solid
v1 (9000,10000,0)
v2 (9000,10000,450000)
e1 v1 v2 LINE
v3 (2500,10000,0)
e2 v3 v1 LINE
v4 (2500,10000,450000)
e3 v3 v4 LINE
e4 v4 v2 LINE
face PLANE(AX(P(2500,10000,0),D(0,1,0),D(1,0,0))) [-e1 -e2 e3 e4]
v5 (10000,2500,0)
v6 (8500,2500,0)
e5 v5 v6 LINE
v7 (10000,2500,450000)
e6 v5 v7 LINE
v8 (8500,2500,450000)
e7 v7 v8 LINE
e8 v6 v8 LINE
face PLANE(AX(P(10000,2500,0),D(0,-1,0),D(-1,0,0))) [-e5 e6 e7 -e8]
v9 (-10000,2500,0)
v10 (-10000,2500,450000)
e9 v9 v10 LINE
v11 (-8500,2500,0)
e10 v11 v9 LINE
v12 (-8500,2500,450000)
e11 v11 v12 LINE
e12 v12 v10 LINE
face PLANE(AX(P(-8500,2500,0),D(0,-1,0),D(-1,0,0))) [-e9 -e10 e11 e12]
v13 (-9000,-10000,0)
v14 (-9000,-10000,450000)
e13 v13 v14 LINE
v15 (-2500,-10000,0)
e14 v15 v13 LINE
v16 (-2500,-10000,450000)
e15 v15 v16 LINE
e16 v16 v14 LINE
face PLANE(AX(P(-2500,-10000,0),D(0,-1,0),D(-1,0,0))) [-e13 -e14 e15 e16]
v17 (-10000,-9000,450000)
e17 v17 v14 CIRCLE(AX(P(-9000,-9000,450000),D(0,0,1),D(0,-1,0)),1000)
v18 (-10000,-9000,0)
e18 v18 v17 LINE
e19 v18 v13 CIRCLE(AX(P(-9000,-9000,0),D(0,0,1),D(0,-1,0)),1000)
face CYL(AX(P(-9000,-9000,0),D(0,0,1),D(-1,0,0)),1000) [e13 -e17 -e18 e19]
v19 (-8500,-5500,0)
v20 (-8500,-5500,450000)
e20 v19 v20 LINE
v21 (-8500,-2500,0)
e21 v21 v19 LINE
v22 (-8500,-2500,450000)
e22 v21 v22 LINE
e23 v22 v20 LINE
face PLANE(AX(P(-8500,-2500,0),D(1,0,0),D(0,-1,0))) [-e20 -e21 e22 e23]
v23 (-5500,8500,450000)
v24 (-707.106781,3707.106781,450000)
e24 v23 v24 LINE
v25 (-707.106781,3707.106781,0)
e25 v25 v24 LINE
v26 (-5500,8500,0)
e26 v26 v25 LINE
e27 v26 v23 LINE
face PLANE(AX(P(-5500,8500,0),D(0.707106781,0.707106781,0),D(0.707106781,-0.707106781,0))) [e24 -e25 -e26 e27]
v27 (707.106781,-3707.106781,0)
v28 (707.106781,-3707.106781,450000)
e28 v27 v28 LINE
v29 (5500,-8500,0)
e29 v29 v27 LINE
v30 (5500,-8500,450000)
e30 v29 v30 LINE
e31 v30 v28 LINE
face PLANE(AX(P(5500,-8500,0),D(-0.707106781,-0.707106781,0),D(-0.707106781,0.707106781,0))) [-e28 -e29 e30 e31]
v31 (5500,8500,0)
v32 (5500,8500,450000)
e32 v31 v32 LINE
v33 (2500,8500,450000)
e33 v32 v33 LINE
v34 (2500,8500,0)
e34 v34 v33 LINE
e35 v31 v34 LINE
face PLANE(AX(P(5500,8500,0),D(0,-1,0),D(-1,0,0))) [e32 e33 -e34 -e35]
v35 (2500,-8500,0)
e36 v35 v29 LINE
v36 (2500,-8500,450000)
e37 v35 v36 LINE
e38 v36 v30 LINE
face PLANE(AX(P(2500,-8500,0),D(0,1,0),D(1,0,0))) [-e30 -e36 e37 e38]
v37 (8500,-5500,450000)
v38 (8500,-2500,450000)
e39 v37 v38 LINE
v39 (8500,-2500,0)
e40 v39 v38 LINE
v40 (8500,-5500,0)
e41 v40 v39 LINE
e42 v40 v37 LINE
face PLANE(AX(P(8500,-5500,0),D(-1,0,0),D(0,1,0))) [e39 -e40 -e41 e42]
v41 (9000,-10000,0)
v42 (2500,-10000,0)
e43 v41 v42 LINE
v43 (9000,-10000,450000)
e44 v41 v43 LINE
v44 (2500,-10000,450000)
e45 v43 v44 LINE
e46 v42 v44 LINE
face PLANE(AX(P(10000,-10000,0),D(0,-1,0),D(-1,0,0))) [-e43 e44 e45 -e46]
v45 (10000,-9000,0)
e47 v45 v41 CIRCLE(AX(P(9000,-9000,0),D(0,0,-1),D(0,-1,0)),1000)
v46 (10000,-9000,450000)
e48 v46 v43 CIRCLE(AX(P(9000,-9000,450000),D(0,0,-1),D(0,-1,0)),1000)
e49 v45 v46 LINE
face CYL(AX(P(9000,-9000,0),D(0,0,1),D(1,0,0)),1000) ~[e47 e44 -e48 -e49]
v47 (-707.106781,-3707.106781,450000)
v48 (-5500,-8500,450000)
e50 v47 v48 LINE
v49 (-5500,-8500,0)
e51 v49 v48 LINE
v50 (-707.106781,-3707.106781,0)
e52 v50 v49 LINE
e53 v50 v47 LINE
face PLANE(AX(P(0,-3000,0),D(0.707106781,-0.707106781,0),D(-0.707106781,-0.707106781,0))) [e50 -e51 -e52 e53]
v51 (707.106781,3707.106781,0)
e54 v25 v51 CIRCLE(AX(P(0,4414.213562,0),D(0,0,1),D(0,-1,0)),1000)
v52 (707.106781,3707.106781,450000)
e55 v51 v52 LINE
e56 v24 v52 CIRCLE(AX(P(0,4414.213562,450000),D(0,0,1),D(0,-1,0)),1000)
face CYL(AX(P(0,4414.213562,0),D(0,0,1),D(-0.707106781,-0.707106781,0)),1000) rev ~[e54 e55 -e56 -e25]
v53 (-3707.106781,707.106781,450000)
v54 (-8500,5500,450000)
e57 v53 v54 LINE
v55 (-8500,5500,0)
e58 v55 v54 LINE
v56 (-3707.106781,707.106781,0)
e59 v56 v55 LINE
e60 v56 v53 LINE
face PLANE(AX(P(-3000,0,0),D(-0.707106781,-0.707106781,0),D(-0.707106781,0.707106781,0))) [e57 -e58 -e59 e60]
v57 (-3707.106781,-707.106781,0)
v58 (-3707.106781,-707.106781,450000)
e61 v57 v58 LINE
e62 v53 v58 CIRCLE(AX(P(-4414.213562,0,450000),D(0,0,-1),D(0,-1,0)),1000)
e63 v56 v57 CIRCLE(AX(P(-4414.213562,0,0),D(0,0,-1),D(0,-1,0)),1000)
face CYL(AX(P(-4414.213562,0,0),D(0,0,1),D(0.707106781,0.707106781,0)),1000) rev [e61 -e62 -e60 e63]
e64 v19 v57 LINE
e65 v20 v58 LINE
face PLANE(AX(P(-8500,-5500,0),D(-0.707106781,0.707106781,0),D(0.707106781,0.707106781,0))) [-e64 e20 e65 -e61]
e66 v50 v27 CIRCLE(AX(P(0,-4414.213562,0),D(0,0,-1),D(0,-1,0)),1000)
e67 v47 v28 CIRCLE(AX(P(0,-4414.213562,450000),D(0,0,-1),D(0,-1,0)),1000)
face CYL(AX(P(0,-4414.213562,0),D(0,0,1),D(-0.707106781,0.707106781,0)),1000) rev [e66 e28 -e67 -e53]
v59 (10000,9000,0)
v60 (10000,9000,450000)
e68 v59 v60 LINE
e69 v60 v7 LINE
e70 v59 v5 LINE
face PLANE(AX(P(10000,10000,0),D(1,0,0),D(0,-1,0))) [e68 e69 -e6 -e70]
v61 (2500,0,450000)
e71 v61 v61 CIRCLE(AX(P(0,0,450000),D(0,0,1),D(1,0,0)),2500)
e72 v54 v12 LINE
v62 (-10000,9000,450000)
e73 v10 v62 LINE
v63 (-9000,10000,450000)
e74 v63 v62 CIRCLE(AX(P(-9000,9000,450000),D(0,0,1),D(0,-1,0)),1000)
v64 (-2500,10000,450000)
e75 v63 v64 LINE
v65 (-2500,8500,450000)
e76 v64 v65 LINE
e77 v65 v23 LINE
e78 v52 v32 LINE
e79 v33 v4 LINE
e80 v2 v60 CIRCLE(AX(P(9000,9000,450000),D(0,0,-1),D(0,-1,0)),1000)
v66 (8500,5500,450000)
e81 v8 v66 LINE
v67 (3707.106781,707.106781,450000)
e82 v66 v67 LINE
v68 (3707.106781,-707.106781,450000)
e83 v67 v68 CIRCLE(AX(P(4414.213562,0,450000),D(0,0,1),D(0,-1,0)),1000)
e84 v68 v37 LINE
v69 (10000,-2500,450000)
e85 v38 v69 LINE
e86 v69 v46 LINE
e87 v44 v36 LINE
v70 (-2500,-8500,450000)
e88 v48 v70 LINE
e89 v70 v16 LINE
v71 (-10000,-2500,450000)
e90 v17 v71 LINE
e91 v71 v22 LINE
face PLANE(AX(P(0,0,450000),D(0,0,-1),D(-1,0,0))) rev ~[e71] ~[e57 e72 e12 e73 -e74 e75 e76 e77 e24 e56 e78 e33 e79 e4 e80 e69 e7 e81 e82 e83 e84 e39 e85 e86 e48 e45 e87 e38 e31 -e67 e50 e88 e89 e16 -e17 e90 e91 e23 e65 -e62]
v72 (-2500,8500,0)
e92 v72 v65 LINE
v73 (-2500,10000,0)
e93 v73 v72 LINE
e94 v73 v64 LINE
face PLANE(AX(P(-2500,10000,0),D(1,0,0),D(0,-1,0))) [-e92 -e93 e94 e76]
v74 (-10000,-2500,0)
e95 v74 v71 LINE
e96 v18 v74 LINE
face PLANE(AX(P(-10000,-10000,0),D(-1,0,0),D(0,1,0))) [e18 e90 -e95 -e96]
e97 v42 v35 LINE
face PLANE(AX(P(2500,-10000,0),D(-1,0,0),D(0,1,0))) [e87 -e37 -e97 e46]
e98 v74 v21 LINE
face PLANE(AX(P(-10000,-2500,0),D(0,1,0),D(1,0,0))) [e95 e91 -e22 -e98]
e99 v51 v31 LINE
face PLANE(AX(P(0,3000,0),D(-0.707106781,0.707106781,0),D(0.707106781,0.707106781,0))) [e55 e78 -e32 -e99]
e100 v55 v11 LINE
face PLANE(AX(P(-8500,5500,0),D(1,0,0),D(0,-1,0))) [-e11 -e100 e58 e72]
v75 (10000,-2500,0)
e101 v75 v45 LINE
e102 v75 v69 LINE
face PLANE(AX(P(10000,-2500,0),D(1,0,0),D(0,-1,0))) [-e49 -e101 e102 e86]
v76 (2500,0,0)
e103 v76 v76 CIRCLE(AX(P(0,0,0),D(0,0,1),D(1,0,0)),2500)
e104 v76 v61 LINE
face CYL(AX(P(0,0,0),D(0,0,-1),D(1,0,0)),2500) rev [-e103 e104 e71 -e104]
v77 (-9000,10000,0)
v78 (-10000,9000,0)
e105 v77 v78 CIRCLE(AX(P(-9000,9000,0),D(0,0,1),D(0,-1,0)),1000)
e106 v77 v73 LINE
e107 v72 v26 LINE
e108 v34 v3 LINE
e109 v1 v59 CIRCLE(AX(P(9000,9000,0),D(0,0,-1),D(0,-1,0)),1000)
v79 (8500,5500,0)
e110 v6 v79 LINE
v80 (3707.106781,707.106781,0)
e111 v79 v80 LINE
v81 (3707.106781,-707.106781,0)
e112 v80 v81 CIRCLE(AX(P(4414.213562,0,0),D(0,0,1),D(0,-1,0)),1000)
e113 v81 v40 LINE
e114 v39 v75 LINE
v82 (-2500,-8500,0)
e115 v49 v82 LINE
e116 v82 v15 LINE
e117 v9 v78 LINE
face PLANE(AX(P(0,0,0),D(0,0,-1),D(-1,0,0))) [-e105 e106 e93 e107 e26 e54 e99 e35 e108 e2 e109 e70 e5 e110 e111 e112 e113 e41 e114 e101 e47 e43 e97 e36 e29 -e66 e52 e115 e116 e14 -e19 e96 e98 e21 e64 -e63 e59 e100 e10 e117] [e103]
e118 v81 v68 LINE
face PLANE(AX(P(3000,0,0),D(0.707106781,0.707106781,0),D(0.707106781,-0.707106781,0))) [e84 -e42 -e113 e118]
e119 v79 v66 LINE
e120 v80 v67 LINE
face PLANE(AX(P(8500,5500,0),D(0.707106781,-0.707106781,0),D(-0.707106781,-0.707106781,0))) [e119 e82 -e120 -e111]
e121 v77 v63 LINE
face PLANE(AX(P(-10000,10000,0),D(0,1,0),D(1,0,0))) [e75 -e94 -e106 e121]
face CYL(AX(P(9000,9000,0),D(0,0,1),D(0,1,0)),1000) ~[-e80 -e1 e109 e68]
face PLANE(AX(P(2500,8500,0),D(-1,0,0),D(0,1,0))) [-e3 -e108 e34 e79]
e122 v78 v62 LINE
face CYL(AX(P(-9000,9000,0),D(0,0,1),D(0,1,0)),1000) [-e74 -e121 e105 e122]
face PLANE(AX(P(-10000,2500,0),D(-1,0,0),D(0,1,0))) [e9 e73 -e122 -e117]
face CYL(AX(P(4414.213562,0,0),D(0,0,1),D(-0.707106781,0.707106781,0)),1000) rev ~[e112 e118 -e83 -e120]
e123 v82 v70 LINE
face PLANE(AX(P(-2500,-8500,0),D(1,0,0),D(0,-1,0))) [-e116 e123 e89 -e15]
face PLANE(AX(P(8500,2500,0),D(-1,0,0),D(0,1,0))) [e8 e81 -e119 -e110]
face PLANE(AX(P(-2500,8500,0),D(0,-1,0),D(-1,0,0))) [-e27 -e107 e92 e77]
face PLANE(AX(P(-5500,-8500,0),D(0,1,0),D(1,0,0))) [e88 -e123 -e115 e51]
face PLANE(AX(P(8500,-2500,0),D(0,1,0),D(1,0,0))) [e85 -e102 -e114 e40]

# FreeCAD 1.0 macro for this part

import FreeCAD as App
import Part
import Sketcher
from FreeCAD import Vector
Q = App.Units.Quantity


def edges_at(feature, points):
    """Names of the edges that pass closest to the given points."""
    edges = feature.Shape.Edges
    near = lambda p: min(range(len(edges)), key=lambda i: edges[i].distToShape(Part.Vertex(*p))[0])
    return sorted({f"Edge{near(p) + 1}" for p in points})

doc = App.newDocument("Part")
body = doc.addObject("PartDesign::Body", "Body")

# Sketch on XY plane
sketch1 = body.newObject("Sketcher::SketchObject", "Sketch")
sketch1.AttachmentSupport = (doc.getObject("XY_Plane"), [""])
sketch1.MapMode = "FlatFace"
sketch1.addGeometry([
    Part.LineSegment(Vector(-2500, 8500, 0), Vector(-2500, 10000, 0)),  # 0
    Part.LineSegment(Vector(-2500, 10000, 0), Vector(-10000, 10000, 0)),  # 1
    Part.LineSegment(Vector(-10000, 10000, 0), Vector(-10000, 2500, 0)),  # 2
    Part.LineSegment(Vector(-10000, 2500, 0), Vector(-8500, 2500, 0)),  # 3
    Part.LineSegment(Vector(-8500, 2500, 0), Vector(-8500, 5500, 0)),  # 4
    Part.LineSegment(Vector(-8500, 5500, 0), Vector(-3000, 0, 0)),  # 5
    Part.LineSegment(Vector(-3000, 0, 0), Vector(-8500, -5500, 0)),  # 6
    Part.LineSegment(Vector(-8500, -5500, 0), Vector(-8500, -2500, 0)),  # 7
    Part.LineSegment(Vector(-8500, -2500, 0), Vector(-10000, -2500, 0)),  # 8
    Part.LineSegment(Vector(-10000, -2500, 0), Vector(-10000, -10000, 0)),  # 9
    Part.LineSegment(Vector(-10000, -10000, 0), Vector(-2500, -10000, 0)),  # 10
    Part.LineSegment(Vector(-2500, -10000, 0), Vector(-2500, -8500, 0)),  # 11
    Part.LineSegment(Vector(-2500, -8500, 0), Vector(-5500, -8500, 0)),  # 12
    Part.LineSegment(Vector(-5500, -8500, 0), Vector(0, -3000, 0)),  # 13
    Part.LineSegment(Vector(0, -3000, 0), Vector(5500, -8500, 0)),  # 14
    Part.LineSegment(Vector(5500, -8500, 0), Vector(2500, -8500, 0)),  # 15
    Part.LineSegment(Vector(2500, -8500, 0), Vector(2500, -10000, 0)),  # 16
    Part.LineSegment(Vector(2500, -10000, 0), Vector(10000, -10000, 0)),  # 17
    Part.LineSegment(Vector(10000, -10000, 0), Vector(10000, -2500, 0)),  # 18
    Part.LineSegment(Vector(10000, -2500, 0), Vector(8500, -2500, 0)),  # 19
    Part.LineSegment(Vector(8500, -2500, 0), Vector(8500, -5500, 0)),  # 20
    Part.LineSegment(Vector(8500, -5500, 0), Vector(3000, 0, 0)),  # 21
    Part.LineSegment(Vector(3000, 0, 0), Vector(8500, 5500, 0)),  # 22
    Part.LineSegment(Vector(8500, 5500, 0), Vector(8500, 2500, 0)),  # 23
    Part.LineSegment(Vector(8500, 2500, 0), Vector(10000, 2500, 0)),  # 24
    Part.LineSegment(Vector(10000, 2500, 0), Vector(10000, 10000, 0)),  # 25
    Part.LineSegment(Vector(10000, 10000, 0), Vector(2500, 10000, 0)),  # 26
    Part.LineSegment(Vector(2500, 10000, 0), Vector(2500, 8500, 0)),  # 27
    Part.LineSegment(Vector(2500, 8500, 0), Vector(5500, 8500, 0)),  # 28
    Part.LineSegment(Vector(5500, 8500, 0), Vector(0, 3000, 0)),  # 29
    Part.LineSegment(Vector(0, 3000, 0), Vector(-5500, 8500, 0)),  # 30
    Part.LineSegment(Vector(-5500, 8500, 0), Vector(-2500, 8500, 0)),  # 31
    Part.Circle(Vector(0, 0, 0), Vector(0, 0, 1), 2500),  # 32
], False)
sketch1.addConstraint([
    Sketcher.Constraint("Coincident", 0, 2, 1, 1),
    Sketcher.Constraint("Coincident", 1, 2, 2, 1),
    Sketcher.Constraint("Coincident", 2, 2, 3, 1),
    Sketcher.Constraint("Coincident", 3, 2, 4, 1),
    Sketcher.Constraint("Coincident", 4, 2, 5, 1),
    Sketcher.Constraint("Coincident", 5, 2, 6, 1),
    Sketcher.Constraint("Coincident", 6, 2, 7, 1),
    Sketcher.Constraint("Coincident", 7, 2, 8, 1),
    Sketcher.Constraint("Coincident", 8, 2, 9, 1),
    Sketcher.Constraint("Coincident", 9, 2, 10, 1),
    Sketcher.Constraint("Coincident", 10, 2, 11, 1),
    Sketcher.Constraint("Coincident", 11, 2, 12, 1),
    Sketcher.Constraint("Coincident", 12, 2, 13, 1),
    Sketcher.Constraint("Coincident", 13, 2, 14, 1),
    Sketcher.Constraint("Coincident", 14, 2, 15, 1),
    Sketcher.Constraint("Coincident", 15, 2, 16, 1),
    Sketcher.Constraint("Coincident", 16, 2, 17, 1),
    Sketcher.Constraint("Coincident", 17, 2, 18, 1),
    Sketcher.Constraint("Coincident", 18, 2, 19, 1),
    Sketcher.Constraint("Coincident", 19, 2, 20, 1),
    Sketcher.Constraint("Coincident", 20, 2, 21, 1),
    Sketcher.Constraint("Coincident", 21, 2, 22, 1),
    Sketcher.Constraint("Coincident", 22, 2, 23, 1),
    Sketcher.Constraint("Coincident", 23, 2, 24, 1),
    Sketcher.Constraint("Coincident", 24, 2, 25, 1),
    Sketcher.Constraint("Coincident", 25, 2, 26, 1),
    Sketcher.Constraint("Coincident", 26, 2, 27, 1),
    Sketcher.Constraint("Coincident", 27, 2, 28, 1),
    Sketcher.Constraint("Coincident", 28, 2, 29, 1),
    Sketcher.Constraint("Coincident", 29, 2, 30, 1),
    Sketcher.Constraint("Coincident", 30, 2, 31, 1),
    Sketcher.Constraint("Coincident", 31, 2, 0, 1),
    Sketcher.Constraint("Vertical", 0),
    Sketcher.Constraint("Horizontal", 1),
    Sketcher.Constraint("Vertical", 2),
    Sketcher.Constraint("Horizontal", 3),
    Sketcher.Constraint("Vertical", 4),
    Sketcher.Constraint("Vertical", 7),
    Sketcher.Constraint("Horizontal", 8),
    Sketcher.Constraint("Vertical", 9),
    Sketcher.Constraint("Horizontal", 10),
    Sketcher.Constraint("Vertical", 11),
    Sketcher.Constraint("Horizontal", 12),
    Sketcher.Constraint("Horizontal", 15),
    Sketcher.Constraint("Vertical", 16),
    Sketcher.Constraint("Horizontal", 17),
    Sketcher.Constraint("Vertical", 18),
    Sketcher.Constraint("Horizontal", 19),
    Sketcher.Constraint("Vertical", 20),
    Sketcher.Constraint("Vertical", 23),
    Sketcher.Constraint("Horizontal", 24),
    Sketcher.Constraint("Vertical", 25),
    Sketcher.Constraint("Horizontal", 26),
    Sketcher.Constraint("Vertical", 27),
    Sketcher.Constraint("Horizontal", 28),
    Sketcher.Constraint("Horizontal", 31),
    Sketcher.Constraint("Coincident", 32, 3, -1, 1),
    Sketcher.Constraint("Symmetric", 0, 2, 16, 2, -1, 1),
    Sketcher.Constraint("Symmetric", 2, 2, 18, 2, -1, 1),
    Sketcher.Constraint("Symmetric", 4, 2, 20, 2, -1, 1),
    Sketcher.Constraint("Symmetric", 5, 2, 21, 2, -1, 1),
    Sketcher.Constraint("Symmetric", 6, 2, 22, 2, -1, 1),
    Sketcher.Constraint("Symmetric", 8, 2, 24, 2, -1, 1),
    Sketcher.Constraint("Symmetric", 10, 2, 26, 2, -1, 1),
    Sketcher.Constraint("Symmetric", 12, 2, 28, 2, -1, 1),
    Sketcher.Constraint("Symmetric", 13, 2, 29, 2, -1, 1),
    Sketcher.Constraint("Symmetric", 14, 2, 30, 2, -1, 1),
    Sketcher.Constraint("Symmetric", 12, 2, 14, 2, -2),
    Sketcher.Constraint("Symmetric", 10, 2, 16, 2, -2),
    Sketcher.Constraint("Symmetric", 8, 2, 18, 2, -2),
    Sketcher.Constraint("Symmetric", 6, 2, 20, 2, -2),
    Sketcher.Constraint("PointOnObject", 5, 2, -1),
    Sketcher.Constraint("PointOnObject", 13, 2, -2),
    Sketcher.Constraint("Perpendicular", 5, 6),
    Sketcher.Constraint("Parallel", 6, 13),
    Sketcher.Constraint("Equal", 24, 0),
    Sketcher.Constraint("Equal", 26, 2),
    Sketcher.Constraint("Equal", 31, 4),
    Sketcher.Constraint("Equal", 6, 13),
    Sketcher.Constraint("Diameter", 32, Q("5000 mm")),
    Sketcher.Constraint("DistanceX", 1, 2, 1, 1, Q("7500 mm")),
    Sketcher.Constraint("DistanceX", 3, 1, 3, 2, Q("1500 mm")),
    Sketcher.Constraint("DistanceX", 12, 2, 12, 1, Q("3000 mm")),
    Sketcher.Constraint("DistanceX", 0, 2, -1, 1, Q("2500 mm")),
])
pad1 = body.newObject("PartDesign::Pad", "Pad")
pad1.Profile = sketch1
pad1.Length = 450000
doc.recompute()

fillet = body.newObject("PartDesign::Fillet", "Fillet")
fillet.Base = (pad1, edges_at(pad1, [
    (0, -3000, 225000),
    (-3000, 0, 225000),
    (0, 3000, 225000),
    (3000, 0, 225000),
]))
fillet.Radius = 1000
doc.recompute()

fillet2 = body.newObject("PartDesign::Fillet", "Fillet001")
fillet2.Base = (fillet, edges_at(fillet, [
    (-10000, -10000, 225000),
    (-10000, 10000, 225000),
    (10000, 10000, 225000),
    (10000, -10000, 225000),
]))
fillet2.Radius = 1000

doc.recompute()
